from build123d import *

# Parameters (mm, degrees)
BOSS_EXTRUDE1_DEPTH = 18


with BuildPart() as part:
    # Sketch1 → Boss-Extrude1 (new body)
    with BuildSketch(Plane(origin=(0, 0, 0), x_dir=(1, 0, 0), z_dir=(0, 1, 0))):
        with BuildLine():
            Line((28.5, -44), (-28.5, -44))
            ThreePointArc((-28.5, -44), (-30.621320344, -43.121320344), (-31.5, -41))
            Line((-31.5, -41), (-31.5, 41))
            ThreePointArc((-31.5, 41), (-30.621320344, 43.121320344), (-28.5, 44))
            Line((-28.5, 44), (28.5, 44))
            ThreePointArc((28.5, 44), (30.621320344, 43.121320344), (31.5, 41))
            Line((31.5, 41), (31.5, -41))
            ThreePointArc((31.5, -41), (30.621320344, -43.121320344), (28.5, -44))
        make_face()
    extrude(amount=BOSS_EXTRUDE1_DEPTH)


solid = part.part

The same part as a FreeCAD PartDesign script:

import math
import FreeCAD as App
import Part
import Sketcher

doc = App.newDocument("Part")
params = doc.addObject("Spreadsheet::Sheet", "Params")
for row, (alias, value) in enumerate([
    ("sketch1_radius", "3 mm"),
    ("sketch1_width", "57 mm"),
    ("sketch1_height", "82 mm"),
    ("pad1_length", "18 mm"),
], start=1):
    params.set(f"A{row}", alias)
    params.set(f"B{row}", "=" + value)
    params.setAlias(f"B{row}", alias)

body = doc.addObject("PartDesign::Body", "Body")

sketch1 = body.newObject("Sketcher::SketchObject", "Sketch")
sketch1.AttachmentSupport = (doc.getObject("XZ_Plane"), [""])
sketch1.MapMode = "FlatFace"
sketch1.addGeometry(Part.LineSegment(App.Vector(-28.5, 44, 0), App.Vector(28.5, 44, 0)), False)
sketch1.addGeometry(Part.ArcOfCircle(Part.Circle(App.Vector(28.5, 41, 0), App.Vector(0, 0, 1), 3), math.radians(0), math.radians(90)), False)
sketch1.addGeometry(Part.LineSegment(App.Vector(31.5, 41, 0), App.Vector(31.5, -41, 0)), False)
sketch1.addGeometry(Part.ArcOfCircle(Part.Circle(App.Vector(28.5, -41, 0), App.Vector(0, 0, 1), 3), math.radians(-90), math.radians(0)), False)
sketch1.addGeometry(Part.LineSegment(App.Vector(28.5, -44, 0), App.Vector(-28.5, -44, 0)), False)
sketch1.addGeometry(Part.ArcOfCircle(Part.Circle(App.Vector(-28.5, -41, 0), App.Vector(0, 0, 1), 3), math.radians(180), math.radians(270)), False)
sketch1.addGeometry(Part.LineSegment(App.Vector(-31.5, -41, 0), App.Vector(-31.5, 41, 0)), False)
sketch1.addGeometry(Part.ArcOfCircle(Part.Circle(App.Vector(-28.5, 41, 0), App.Vector(0, 0, 1), 3), math.radians(90), math.radians(180)), False)
sketch1.addConstraint(Sketcher.Constraint("Tangent", 0, 2, 1, 2))
sketch1.addConstraint(Sketcher.Constraint("Tangent", 1, 1, 2, 1))
sketch1.addConstraint(Sketcher.Constraint("Tangent", 2, 2, 3, 2))
sketch1.addConstraint(Sketcher.Constraint("Tangent", 3, 1, 4, 1))
sketch1.addConstraint(Sketcher.Constraint("Tangent", 4, 2, 5, 2))
sketch1.addConstraint(Sketcher.Constraint("Tangent", 5, 1, 6, 1))
sketch1.addConstraint(Sketcher.Constraint("Tangent", 6, 2, 7, 2))
sketch1.addConstraint(Sketcher.Constraint("Tangent", 7, 1, 0, 1))
sketch1.addConstraint(Sketcher.Constraint("Horizontal", 0))
sketch1.addConstraint(Sketcher.Constraint("Vertical", 2))
sketch1.addConstraint(Sketcher.Constraint("Horizontal", 4))
sketch1.addConstraint(Sketcher.Constraint("Vertical", 6))
sketch1.addConstraint(Sketcher.Constraint("Equal", 1, 3))
sketch1.addConstraint(Sketcher.Constraint("Equal", 3, 5))
sketch1.addConstraint(Sketcher.Constraint("Equal", 5, 7))
sketch1.addConstraint(Sketcher.Constraint("Symmetric", 1, 3, 5, 3, -1, 1))
sketch1.addConstraint(Sketcher.Constraint("Radius", 1, 3.0))
sketch1.addConstraint(Sketcher.Constraint("DistanceX", 0, 1, 0, 2, 57.0))
sketch1.addConstraint(Sketcher.Constraint("DistanceY", 2, 2, 2, 1, 82.0))
sketch1.setExpression("Constraints[16]", "Params.sketch1_radius")
sketch1.setExpression("Constraints[17]", "Params.sketch1_width")
sketch1.setExpression("Constraints[18]", "Params.sketch1_height")
pad1 = body.newObject("PartDesign::Pad", "Pad")
pad1.Profile = sketch1
pad1.setExpression("Length", "Params.pad1_length")
pad1.Reversed = True

doc.recompute()
